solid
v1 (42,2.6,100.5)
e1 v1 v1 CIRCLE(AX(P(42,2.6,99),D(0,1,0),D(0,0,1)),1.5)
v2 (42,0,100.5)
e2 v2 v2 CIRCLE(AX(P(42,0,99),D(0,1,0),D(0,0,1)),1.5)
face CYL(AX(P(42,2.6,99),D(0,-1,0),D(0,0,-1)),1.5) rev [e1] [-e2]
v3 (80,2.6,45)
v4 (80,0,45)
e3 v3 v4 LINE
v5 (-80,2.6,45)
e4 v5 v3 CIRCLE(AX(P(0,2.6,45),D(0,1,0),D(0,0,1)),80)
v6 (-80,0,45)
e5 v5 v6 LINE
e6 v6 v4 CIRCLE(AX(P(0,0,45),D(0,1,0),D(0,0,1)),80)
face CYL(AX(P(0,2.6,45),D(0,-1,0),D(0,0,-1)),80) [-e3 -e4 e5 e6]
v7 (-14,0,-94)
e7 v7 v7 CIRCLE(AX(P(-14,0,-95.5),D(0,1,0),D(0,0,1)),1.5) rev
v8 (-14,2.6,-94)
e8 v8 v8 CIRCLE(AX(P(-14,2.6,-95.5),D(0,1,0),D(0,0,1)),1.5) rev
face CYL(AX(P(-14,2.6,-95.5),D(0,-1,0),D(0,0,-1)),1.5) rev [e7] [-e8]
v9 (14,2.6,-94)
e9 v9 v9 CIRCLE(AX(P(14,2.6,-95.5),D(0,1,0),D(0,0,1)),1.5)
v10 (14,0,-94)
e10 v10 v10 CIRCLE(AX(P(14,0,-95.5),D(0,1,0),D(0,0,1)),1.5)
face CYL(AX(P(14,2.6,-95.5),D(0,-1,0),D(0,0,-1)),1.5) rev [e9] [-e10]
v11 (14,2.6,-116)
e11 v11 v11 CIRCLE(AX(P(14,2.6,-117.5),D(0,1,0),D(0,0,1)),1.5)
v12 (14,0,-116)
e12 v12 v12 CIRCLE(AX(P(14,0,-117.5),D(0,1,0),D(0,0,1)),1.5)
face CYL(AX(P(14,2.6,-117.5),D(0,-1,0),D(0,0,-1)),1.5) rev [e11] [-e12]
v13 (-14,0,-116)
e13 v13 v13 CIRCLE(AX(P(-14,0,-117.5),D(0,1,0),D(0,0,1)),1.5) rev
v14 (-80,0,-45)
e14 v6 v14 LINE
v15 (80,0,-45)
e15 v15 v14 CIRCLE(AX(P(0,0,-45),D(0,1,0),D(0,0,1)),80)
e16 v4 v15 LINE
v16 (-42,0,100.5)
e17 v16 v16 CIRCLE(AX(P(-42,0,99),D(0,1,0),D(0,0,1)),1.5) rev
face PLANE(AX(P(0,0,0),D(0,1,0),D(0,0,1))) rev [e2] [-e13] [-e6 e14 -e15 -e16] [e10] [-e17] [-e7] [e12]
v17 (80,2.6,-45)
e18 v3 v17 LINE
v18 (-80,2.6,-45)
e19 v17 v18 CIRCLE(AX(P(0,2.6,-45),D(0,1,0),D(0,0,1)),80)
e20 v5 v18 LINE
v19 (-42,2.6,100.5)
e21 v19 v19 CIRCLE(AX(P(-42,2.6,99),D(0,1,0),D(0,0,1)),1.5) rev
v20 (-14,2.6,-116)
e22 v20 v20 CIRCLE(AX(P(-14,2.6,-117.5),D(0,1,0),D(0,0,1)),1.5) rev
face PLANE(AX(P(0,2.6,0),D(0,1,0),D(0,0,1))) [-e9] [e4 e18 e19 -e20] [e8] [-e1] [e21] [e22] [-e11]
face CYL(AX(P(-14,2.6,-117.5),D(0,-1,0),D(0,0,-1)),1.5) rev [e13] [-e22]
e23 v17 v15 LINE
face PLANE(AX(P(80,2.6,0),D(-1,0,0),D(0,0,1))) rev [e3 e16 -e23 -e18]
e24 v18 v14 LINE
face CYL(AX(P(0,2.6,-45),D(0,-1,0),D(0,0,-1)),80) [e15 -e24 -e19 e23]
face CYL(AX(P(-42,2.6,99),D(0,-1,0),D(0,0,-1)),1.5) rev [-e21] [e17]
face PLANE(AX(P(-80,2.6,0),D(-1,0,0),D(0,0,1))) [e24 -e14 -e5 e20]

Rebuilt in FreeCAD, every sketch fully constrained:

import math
import FreeCAD as App
import Part
import Sketcher

V = App.Vector
Q = App.Units.Quantity

doc = App.newDocument("Part")
body = doc.addObject("PartDesign::Body", "Body")

# Sketch on XZ plane
sketch1 = doc.addObject("Sketcher::SketchObject", "Sketch")
body.addObject(sketch1)
sketch1.AttachmentSupport = (doc.XZ_Plane, [""])
sketch1.MapMode = "FlatFace"
sketch1.addGeometry(Part.LineSegment(V(-80, -45, 0), V(-80, 45, 0)), False)
sketch1.addGeometry(Part.ArcOfCircle(Part.Circle(V(0, 45, 0), V(0, 0, 1), 80), math.radians(0), math.radians(180)), False)
sketch1.addGeometry(Part.LineSegment(V(80, 45, 0), V(80, -45, 0)), False)
sketch1.addGeometry(Part.ArcOfCircle(Part.Circle(V(0, -45, 0), V(0, 0, 1), 80), math.radians(180), math.radians(360)), False)
sketch1.addGeometry(Part.Circle(V(42, 99, 0), V(0, 0, 1), 1.5), False)
sketch1.addGeometry(Part.Circle(V(-42, 99, 0), V(0, 0, 1), 1.5), False)
sketch1.addGeometry(Part.Circle(V(14, -95.5, 0), V(0, 0, 1), 1.5), False)
sketch1.addGeometry(Part.Circle(V(14, -117.5, 0), V(0, 0, 1), 1.5), False)
sketch1.addGeometry(Part.Circle(V(-14, -95.5, 0), V(0, 0, 1), 1.5), False)
sketch1.addGeometry(Part.Circle(V(-14, -117.5, 0), V(0, 0, 1), 1.5), False)
sketch1.addConstraint(Sketcher.Constraint("Tangent", 0, 2, 1, 2))
sketch1.addConstraint(Sketcher.Constraint("Tangent", 1, 1, 2, 1))
sketch1.addConstraint(Sketcher.Constraint("Tangent", 2, 2, 3, 2))
sketch1.addConstraint(Sketcher.Constraint("Tangent", 3, 1, 0, 1))
sketch1.addConstraint(Sketcher.Constraint("Vertical", 0))
sketch1.addConstraint(Sketcher.Constraint("Vertical", 2))
sketch1.addConstraint(Sketcher.Constraint("Equal", 4, 5))
sketch1.addConstraint(Sketcher.Constraint("Equal", 5, 6))
sketch1.addConstraint(Sketcher.Constraint("Equal", 6, 7))
sketch1.addConstraint(Sketcher.Constraint("Equal", 7, 8))
sketch1.addConstraint(Sketcher.Constraint("Equal", 8, 9))
sketch1.addConstraint(Sketcher.Constraint("Symmetric", 1, 3, 3, 3, -1, 1))
sketch1.addConstraint(Sketcher.Constraint("Symmetric", 4, 3, 5, 3, -2))
sketch1.addConstraint(Sketcher.Constraint("Symmetric", 6, 3, 8, 3, -2))
sketch1.addConstraint(Sketcher.Constraint("Symmetric", 7, 3, 9, 3, -2))
sketch1.addConstraint(Sketcher.Constraint("Vertical", 6, 3, 7, 3))
sketch1.addConstraint(Sketcher.Constraint("Diameter", 4, Q("3 mm")))
sketch1.addConstraint(Sketcher.Constraint("Radius", 1, Q("80 mm")))
sketch1.addConstraint(Sketcher.Constraint("DistanceY", 0, 1, 0, 2, Q("90 mm")))
sketch1.addConstraint(Sketcher.Constraint("DistanceX", -1, 1, 4, 3, Q("42 mm")))
sketch1.addConstraint(Sketcher.Constraint("DistanceY", -1, 1, 4, 3, Q("99 mm")))
sketch1.addConstraint(Sketcher.Constraint("DistanceX", -1, 1, 6, 3, Q("14 mm")))
sketch1.addConstraint(Sketcher.Constraint("DistanceY", 7, 3, 6, 3, Q("22 mm")))
sketch1.addConstraint(Sketcher.Constraint("DistanceY", 6, 3, -1, 1, Q("95.5 mm")))
pad1 = doc.addObject("PartDesign::Pad", "Pad")
body.addObject(pad1)
pad1.Profile = sketch1
pad1.Length = 2.6
pad1.Reversed = True

doc.recompute()
